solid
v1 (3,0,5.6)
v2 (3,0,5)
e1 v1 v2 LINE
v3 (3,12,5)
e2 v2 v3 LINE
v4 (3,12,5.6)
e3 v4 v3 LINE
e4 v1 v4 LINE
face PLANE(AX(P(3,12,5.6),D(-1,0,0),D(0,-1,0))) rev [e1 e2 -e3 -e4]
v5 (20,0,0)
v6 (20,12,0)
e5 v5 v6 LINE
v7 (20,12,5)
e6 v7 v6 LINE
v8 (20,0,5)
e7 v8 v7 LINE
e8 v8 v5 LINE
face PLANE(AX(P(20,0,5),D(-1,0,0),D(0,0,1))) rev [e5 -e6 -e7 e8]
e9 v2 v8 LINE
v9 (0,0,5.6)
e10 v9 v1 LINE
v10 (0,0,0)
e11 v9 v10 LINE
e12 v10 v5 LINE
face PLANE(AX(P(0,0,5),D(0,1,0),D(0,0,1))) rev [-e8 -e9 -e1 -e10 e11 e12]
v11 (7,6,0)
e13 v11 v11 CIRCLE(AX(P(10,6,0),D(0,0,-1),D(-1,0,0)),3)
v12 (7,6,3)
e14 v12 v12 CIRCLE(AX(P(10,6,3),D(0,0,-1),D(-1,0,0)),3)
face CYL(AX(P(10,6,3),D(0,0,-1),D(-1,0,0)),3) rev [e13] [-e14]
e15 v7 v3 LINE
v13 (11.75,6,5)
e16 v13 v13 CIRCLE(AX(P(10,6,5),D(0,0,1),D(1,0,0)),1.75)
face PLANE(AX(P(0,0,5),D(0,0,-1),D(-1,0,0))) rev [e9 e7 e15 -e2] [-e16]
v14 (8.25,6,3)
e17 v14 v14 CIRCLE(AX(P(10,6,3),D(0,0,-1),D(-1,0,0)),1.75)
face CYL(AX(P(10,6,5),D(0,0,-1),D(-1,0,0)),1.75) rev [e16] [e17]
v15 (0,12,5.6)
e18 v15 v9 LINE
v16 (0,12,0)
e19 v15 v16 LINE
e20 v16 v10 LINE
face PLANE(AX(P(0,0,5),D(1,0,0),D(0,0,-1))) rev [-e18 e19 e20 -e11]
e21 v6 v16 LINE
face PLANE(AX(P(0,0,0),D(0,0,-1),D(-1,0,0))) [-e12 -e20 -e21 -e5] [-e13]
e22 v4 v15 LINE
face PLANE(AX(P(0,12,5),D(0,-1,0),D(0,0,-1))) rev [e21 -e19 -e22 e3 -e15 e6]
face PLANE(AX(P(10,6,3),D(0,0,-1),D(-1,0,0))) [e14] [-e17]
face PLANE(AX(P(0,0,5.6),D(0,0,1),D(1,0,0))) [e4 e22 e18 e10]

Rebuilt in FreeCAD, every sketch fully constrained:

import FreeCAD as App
import Part
import Sketcher

V = App.Vector
Q = App.Units.Quantity


def add_polygon(sketch, points):
    """Adds a closed chain of lines whose ends are joined by coincident constraints."""
    first, n = sketch.GeometryCount, len(points)
    for a, b in zip(points, points[1:] + points[:1]):
        sketch.addGeometry(Part.LineSegment(App.Vector(*a, 0), App.Vector(*b, 0)), False)
    for i in range(n):
        sketch.addConstraint(Sketcher.Constraint("Coincident", first + i, 2, first + (i + 1) % n, 1))

doc = App.newDocument("Part")
body = doc.addObject("PartDesign::Body", "Body")

# Sketch on XY plane
sketch1 = body.newObject("Sketcher::SketchObject", "Sketch")
sketch1.AttachmentSupport = (doc.getObject("XY_Plane"), [""])
sketch1.MapMode = "FlatFace"
add_polygon(sketch1, [(0, 12), (0, 0), (20, 0), (20, 12)])  # lines 0-3
sketch1.addGeometry(Part.Circle(V(10, 6, 0), V(0, 0, 1), 1.8), False)  # 4
sketch1.addConstraint([
    Sketcher.Constraint("Vertical", 0),
    Sketcher.Constraint("Horizontal", 1),
    Sketcher.Constraint("Vertical", 2),
    Sketcher.Constraint("Horizontal", 3),
    Sketcher.Constraint("Coincident", 0, 2, -1, 1),
    Sketcher.Constraint("Diameter", 4, Q("3.5 mm")),
    Sketcher.Constraint("DistanceX", 1, 1, 1, 2, Q("20 mm")),
    Sketcher.Constraint("DistanceY", 0, 2, 0, 1, Q("12 mm")),
    Sketcher.Constraint("DistanceX", -1, 1, 4, 3, Q("10 mm")),
    Sketcher.Constraint("DistanceY", -1, 1, 4, 3, Q("6 mm")),
])
pad1 = body.newObject("PartDesign::Pad", "Pad")
pad1.Profile = sketch1
pad1.Length = 5

# Sketch on XY plane
sketch2 = body.newObject("Sketcher::SketchObject", "Sketch001")
sketch2.AttachmentSupport = (doc.getObject("XY_Plane"), [""])
sketch2.MapMode = "FlatFace"
sketch2.AttachmentOffset = App.Placement(V(0, 0, 5), App.Rotation())
add_polygon(sketch2, [(0, 12), (0, 0), (3, 0), (3, 12)])  # lines 0-3
sketch2.addConstraint([
    Sketcher.Constraint("Vertical", 0),
    Sketcher.Constraint("Horizontal", 1),
    Sketcher.Constraint("Vertical", 2),
    Sketcher.Constraint("Horizontal", 3),
    Sketcher.Constraint("Coincident", 0, 2, -1, 1),
    Sketcher.Constraint("DistanceX", 1, 1, 1, 2, Q("3 mm")),
    Sketcher.Constraint("DistanceY", 0, 2, 0, 1, Q("12 mm")),
])
pad2 = body.newObject("PartDesign::Pad", "Pad001")
pad2.Profile = sketch2
pad2.Length = 0.6

# Sketch on XY plane
sketch3 = body.newObject("Sketcher::SketchObject", "Sketch002")
sketch3.AttachmentSupport = (doc.getObject("XY_Plane"), [""])
sketch3.MapMode = "FlatFace"
sketch3.addGeometry(Part.Circle(V(10, 6, 0), V(0, 0, 1), 3), False)
sketch3.addConstraint([
    Sketcher.Constraint("Diameter", 0, Q("6 mm")),
    Sketcher.Constraint("DistanceX", -1, 1, 0, 3, Q("10 mm")),
    Sketcher.Constraint("DistanceY", -1, 1, 0, 3, Q("6 mm")),
])
pocket1 = body.newObject("PartDesign::Pocket", "Pocket")
pocket1.Profile = sketch3
pocket1.Length = 3
pocket1.Reversed = True

doc.recompute()
